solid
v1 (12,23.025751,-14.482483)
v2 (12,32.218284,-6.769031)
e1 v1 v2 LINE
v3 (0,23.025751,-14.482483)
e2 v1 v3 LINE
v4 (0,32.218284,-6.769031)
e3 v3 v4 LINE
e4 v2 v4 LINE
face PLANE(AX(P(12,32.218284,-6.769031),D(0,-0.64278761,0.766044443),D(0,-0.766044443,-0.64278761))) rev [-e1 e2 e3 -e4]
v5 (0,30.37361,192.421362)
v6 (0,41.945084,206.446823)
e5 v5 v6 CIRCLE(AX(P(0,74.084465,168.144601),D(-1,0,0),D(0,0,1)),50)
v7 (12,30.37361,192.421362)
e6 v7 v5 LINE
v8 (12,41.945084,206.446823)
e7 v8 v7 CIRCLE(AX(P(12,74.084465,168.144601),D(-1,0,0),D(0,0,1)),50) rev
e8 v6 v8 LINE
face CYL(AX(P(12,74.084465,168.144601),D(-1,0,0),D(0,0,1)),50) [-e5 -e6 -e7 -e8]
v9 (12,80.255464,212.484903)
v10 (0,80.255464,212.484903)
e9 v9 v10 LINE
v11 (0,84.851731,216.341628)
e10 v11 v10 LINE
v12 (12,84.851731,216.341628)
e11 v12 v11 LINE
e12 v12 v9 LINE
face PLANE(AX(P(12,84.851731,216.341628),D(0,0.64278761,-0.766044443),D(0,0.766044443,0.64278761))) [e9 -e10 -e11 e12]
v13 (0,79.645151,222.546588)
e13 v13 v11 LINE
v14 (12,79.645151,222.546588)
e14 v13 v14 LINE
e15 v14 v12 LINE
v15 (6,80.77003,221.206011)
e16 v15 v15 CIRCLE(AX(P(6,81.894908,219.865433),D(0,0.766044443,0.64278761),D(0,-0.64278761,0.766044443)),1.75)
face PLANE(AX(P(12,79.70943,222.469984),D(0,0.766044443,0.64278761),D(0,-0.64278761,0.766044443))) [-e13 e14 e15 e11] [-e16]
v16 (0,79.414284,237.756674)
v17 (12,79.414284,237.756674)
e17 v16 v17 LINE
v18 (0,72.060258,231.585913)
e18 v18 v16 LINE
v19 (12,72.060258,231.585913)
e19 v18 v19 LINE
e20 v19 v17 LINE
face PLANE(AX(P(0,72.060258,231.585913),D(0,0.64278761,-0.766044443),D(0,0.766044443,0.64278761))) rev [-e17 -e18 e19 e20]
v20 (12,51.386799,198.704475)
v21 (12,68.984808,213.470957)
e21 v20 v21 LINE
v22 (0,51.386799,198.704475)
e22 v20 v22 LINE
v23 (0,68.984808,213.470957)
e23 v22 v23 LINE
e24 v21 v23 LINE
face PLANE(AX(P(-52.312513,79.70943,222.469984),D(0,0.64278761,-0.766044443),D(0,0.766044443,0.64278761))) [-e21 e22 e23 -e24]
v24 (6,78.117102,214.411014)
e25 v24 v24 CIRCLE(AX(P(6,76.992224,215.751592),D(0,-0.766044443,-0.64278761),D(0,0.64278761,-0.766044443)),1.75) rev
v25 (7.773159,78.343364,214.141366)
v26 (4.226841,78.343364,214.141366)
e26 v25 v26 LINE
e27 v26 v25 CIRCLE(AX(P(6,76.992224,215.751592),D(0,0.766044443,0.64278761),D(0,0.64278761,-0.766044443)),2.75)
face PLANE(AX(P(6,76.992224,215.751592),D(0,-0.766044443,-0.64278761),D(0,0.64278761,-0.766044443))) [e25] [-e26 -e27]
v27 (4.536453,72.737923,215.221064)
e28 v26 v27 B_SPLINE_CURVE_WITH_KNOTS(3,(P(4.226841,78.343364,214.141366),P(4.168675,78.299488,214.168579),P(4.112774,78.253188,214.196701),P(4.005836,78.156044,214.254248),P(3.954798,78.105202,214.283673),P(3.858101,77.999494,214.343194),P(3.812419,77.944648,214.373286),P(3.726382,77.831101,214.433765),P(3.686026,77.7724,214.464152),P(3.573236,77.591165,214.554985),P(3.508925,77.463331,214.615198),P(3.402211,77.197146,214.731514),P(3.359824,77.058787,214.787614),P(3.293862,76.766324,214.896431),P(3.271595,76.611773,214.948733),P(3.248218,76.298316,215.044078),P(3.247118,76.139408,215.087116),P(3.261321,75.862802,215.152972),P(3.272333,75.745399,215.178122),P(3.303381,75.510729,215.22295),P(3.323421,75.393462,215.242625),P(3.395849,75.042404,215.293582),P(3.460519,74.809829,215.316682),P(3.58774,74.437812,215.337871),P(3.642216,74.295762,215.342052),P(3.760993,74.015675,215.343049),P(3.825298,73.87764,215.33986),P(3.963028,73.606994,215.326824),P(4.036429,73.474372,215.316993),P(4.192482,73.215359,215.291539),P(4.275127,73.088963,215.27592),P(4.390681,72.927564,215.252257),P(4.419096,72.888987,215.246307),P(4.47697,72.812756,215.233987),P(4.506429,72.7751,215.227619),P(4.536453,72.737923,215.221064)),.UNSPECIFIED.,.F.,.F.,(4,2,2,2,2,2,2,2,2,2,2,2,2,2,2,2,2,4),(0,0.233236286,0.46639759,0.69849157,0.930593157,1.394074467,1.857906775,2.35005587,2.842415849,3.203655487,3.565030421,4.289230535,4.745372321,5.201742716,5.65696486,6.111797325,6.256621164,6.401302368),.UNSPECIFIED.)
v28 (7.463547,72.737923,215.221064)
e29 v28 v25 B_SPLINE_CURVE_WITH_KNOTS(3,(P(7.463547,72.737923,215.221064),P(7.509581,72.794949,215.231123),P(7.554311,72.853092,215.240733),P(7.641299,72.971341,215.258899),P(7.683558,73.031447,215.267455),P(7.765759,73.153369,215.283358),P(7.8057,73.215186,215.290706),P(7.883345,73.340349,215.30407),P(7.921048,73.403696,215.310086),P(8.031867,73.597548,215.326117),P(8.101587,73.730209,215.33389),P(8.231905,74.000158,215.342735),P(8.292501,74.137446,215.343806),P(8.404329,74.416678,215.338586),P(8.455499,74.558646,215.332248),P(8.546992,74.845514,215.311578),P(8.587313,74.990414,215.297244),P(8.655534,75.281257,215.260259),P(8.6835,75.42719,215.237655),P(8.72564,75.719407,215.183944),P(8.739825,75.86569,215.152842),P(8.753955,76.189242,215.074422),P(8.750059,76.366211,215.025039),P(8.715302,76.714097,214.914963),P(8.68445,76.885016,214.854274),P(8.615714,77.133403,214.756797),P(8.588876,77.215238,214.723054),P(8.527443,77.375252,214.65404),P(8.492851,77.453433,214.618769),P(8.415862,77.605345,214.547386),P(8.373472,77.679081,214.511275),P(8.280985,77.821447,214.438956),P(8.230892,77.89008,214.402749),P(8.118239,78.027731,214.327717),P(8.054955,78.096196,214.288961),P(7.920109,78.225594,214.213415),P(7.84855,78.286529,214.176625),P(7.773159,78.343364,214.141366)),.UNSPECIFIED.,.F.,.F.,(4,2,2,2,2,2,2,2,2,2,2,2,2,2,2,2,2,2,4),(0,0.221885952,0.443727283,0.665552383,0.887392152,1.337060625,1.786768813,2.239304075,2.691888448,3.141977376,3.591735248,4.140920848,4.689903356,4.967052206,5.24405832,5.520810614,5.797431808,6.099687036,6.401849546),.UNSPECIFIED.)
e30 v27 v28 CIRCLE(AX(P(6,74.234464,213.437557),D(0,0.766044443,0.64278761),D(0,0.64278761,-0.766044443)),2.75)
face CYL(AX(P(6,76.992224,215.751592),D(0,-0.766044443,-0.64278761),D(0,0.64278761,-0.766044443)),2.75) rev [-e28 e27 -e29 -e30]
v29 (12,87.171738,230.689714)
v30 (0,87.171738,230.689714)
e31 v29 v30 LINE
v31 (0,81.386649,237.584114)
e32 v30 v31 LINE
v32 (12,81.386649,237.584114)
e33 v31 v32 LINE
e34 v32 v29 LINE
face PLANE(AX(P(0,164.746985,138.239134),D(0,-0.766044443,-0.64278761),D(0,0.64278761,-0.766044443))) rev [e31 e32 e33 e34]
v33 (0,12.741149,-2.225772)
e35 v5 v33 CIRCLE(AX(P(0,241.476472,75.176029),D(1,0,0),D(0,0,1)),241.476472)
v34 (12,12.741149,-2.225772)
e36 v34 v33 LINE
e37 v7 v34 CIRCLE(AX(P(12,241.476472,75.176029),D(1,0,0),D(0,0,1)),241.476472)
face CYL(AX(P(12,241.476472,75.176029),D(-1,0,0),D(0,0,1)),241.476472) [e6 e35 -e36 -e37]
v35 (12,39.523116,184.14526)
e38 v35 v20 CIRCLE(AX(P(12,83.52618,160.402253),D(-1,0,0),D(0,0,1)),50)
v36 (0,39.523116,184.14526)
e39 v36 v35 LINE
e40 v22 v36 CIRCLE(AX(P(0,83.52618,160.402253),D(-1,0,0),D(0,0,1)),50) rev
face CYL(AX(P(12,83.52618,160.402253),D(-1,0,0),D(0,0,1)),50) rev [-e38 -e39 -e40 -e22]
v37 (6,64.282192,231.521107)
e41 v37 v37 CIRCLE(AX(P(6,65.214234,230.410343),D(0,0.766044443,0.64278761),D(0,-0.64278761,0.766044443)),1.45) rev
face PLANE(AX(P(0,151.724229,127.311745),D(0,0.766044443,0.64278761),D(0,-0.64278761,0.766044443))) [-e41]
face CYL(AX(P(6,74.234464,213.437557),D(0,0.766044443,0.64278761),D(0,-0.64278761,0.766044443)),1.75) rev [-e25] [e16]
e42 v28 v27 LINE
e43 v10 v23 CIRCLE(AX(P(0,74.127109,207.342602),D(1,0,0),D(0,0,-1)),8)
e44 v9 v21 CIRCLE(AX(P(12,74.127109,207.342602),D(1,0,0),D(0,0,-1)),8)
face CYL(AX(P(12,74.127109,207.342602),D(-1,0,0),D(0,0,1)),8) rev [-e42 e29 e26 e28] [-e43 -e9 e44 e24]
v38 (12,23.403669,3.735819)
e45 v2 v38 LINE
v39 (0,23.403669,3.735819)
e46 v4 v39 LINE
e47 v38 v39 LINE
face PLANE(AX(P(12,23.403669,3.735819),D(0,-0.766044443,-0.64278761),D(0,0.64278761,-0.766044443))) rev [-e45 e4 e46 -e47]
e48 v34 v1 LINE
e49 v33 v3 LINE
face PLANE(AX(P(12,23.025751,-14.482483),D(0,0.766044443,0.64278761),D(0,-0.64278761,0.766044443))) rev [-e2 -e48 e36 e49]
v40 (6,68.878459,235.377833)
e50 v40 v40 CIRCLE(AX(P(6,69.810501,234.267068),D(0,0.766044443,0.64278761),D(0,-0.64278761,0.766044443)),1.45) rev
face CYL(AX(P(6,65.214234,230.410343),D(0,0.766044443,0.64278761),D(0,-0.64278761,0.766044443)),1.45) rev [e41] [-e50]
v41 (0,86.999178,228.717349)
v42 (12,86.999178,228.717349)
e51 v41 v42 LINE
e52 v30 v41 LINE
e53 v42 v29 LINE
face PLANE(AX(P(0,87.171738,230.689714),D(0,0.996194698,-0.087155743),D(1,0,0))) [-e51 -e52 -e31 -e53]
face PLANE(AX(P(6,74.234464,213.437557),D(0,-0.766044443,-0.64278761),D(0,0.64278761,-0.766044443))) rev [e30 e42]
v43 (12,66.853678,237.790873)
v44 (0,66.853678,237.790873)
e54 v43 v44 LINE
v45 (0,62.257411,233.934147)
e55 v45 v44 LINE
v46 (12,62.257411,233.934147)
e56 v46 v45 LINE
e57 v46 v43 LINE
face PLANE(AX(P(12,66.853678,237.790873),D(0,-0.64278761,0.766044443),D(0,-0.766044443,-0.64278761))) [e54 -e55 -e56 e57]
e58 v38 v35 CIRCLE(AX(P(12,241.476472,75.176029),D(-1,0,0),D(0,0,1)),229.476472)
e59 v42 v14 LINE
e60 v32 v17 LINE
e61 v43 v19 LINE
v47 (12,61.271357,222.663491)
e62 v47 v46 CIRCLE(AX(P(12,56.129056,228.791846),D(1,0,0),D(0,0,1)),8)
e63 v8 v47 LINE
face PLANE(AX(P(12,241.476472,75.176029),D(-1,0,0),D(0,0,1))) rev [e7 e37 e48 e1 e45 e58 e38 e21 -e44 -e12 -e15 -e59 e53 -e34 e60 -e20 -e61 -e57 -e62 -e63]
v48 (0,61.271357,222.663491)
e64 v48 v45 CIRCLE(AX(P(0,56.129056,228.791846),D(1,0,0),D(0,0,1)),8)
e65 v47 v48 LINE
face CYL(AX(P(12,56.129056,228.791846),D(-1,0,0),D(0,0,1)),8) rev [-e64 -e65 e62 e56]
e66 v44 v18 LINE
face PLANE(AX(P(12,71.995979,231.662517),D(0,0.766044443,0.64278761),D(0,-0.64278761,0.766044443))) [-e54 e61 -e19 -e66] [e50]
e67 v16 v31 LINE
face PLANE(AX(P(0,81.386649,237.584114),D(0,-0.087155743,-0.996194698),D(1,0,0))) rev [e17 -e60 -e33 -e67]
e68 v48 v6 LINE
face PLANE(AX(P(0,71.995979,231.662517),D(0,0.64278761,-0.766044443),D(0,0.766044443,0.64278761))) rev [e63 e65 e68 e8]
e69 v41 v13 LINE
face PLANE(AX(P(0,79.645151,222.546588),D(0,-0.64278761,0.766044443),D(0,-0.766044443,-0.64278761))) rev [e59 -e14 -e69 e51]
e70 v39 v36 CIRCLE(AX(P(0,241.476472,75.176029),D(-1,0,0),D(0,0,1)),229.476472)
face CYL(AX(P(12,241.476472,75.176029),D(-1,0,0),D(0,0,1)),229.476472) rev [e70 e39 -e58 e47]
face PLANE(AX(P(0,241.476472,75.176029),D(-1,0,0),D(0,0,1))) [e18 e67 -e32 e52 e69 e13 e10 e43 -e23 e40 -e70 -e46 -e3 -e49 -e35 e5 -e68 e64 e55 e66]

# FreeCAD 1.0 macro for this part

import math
import FreeCAD as App
import Part
import Sketcher
from FreeCAD import Vector
Q = App.Units.Quantity


def edges_at(feature, points):
    """Names of the edges that pass closest to the given points."""
    edges = feature.Shape.Edges
    near = lambda p: min(range(len(edges)), key=lambda i: edges[i].distToShape(Part.Vertex(*p))[0])
    return sorted({f"Edge{near(p) + 1}" for p in points})


def add_polygon(sketch, points):
    """Adds a closed chain of lines whose ends are joined by coincident constraints."""
    first, n = sketch.GeometryCount, len(points)
    for a, b in zip(points, points[1:] + points[:1]):
        sketch.addGeometry(Part.LineSegment(App.Vector(*a, 0), App.Vector(*b, 0)), False)
    for i in range(n):
        sketch.addConstraint(Sketcher.Constraint("Coincident", first + i, 2, first + (i + 1) % n, 1))

doc = App.newDocument("Part")
body = doc.addObject("PartDesign::Body", "Body")

sketch1 = doc.addObject("Sketcher::SketchObject", "Sketch")
body.addObject(sketch1)
sketch1.AttachmentSupport = (doc.YZ_Plane, [""])
sketch1.MapMode = "FlatFace"
sketch1.addGeometry([
    Part.LineSegment(Vector(72.773664, 230.735708, 0), Vector(65, 240, 0)),
    Part.ArcOfCircle(Part.Circle(Vector(241.476472, 75.176029, 0), Vector(0, 0, 1), 241.476472), math.radians(136.955403), math.radians(198.138691)),
    Part.LineSegment(Vector(12, 0, 0), Vector(23.403669, 3.735819, 0)),
    Part.ArcOfCircle(Part.Circle(Vector(241.476472, 75.176029, 0), Vector(0, 0, 1), 229.476472), math.radians(137.321064), math.radians(198.138691)),
], False)
sketch1.addConstraint([
    Sketcher.Constraint("Coincident", 0, 2, 1, 1),
    Sketcher.Constraint("Coincident", 1, 2, 2, 1),
    Sketcher.Constraint("Coincident", 2, 2, 3, 2),
    Sketcher.Constraint("Coincident", 3, 1, 0, 1),
    Sketcher.Constraint("Coincident", 3, 3, 1, 3),
    Sketcher.Constraint("PointOnObject", 1, 2, -1),
    Sketcher.Constraint("Angle", 0, Q("130 deg")),
    Sketcher.Constraint("Distance", 2, Q("12 mm")),
    Sketcher.Constraint("DistanceX", -1, 1, 0, 2, Q("65 mm")),
    Sketcher.Constraint("DistanceY", -1, 1, 0, 2, Q("240 mm")),
    Sketcher.Constraint("DistanceX", -1, 1, 1, 2, Q("12 mm")),
    Sketcher.Constraint("Radius", 1, Q("241.476472 mm")),
    Sketcher.Constraint("DistanceX", -1, 1, 2, 2, Q("23.403669 mm")),
])
pad1 = doc.addObject("PartDesign::Pad", "Pad")
body.addObject(pad1)
pad1.Profile = sketch1
pad1.Length = 12

sketch2 = doc.addObject("Sketcher::SketchObject", "Sketch001")
body.addObject(sketch2)
sketch2.AttachmentSupport = (doc.YZ_Plane, [""])
sketch2.MapMode = "FlatFace"
sketch2.addGeometry([
    Part.LineSegment(Vector(32.218284, -6.769031, 0), Vector(23.403669, 3.735819, 0)),
    Part.LineSegment(Vector(23.403669, 3.735819, 0), Vector(12, 0, 0)),
    Part.ArcOfCircle(Part.Circle(Vector(241.476475, 75.17603, 0), Vector(0, 0, 1), 241.476475), math.radians(-161.861309), math.radians(-161.304683)),
    Part.LineSegment(Vector(12.741149, -2.225772, 0), Vector(23.025751, -14.482483, 0)),
    Part.LineSegment(Vector(23.025751, -14.482483, 0), Vector(32.218284, -6.769031, 0)),
], False)
sketch2.addConstraint([
    Sketcher.Constraint("Coincident", 0, 2, 1, 1),
    Sketcher.Constraint("Coincident", 1, 2, 2, 1),
    Sketcher.Constraint("Coincident", 2, 2, 3, 1),
    Sketcher.Constraint("Coincident", 3, 2, 4, 1),
    Sketcher.Constraint("Coincident", 4, 2, 0, 1),
    Sketcher.Constraint("PointOnObject", 1, 2, -1),
    Sketcher.Constraint("Parallel", 0, 3),
    Sketcher.Constraint("Perpendicular", 3, 4),
    Sketcher.Constraint("Equal", 1, 4),
    Sketcher.Constraint("Angle", 0, Q("130 deg")),
    Sketcher.Constraint("Distance", 1, Q("12 mm")),
    Sketcher.Constraint("Distance", 3, Q("16 mm")),
    Sketcher.Constraint("DistanceX", -1, 1, 1, 2, Q("12 mm")),
    Sketcher.Constraint("Radius", 2, Q("241.476475 mm")),
    Sketcher.Constraint("DistanceY", 2, 2, 2, 3, Q("77.401802 mm")),
    Sketcher.Constraint("DistanceY", -1, 1, 2, 3, Q("75.17603 mm")),
])
pad2 = doc.addObject("PartDesign::Pad", "Pad001")
body.addObject(pad2)
pad2.Profile = sketch2
pad2.Length = 12

sketch3 = doc.addObject("Sketcher::SketchObject", "Sketch002")
body.addObject(sketch3)
sketch3.AttachmentSupport = (doc.YZ_Plane, [""])
sketch3.MapMode = "FlatFace"
sketch3.AttachmentOffset = App.Placement(Vector(0, 0, 12), App.Rotation())
add_polygon(sketch3, [(79.70943, 222.469984), (71.995979, 231.662517), (58.207179, 220.09234), (44.526895, 192.948331), (65.92063, 210.899807)])
sketch3.addConstraint([
    Sketcher.Constraint("Perpendicular", 0, 1),
    Sketcher.Constraint("Parallel", 1, 3),
    Sketcher.Constraint("Parallel", 3, 4),
    Sketcher.Constraint("Equal", 1, 4),
    Sketcher.Constraint("Angle", 0, Q("130 deg")),
    Sketcher.Constraint("Distance", 0, Q("12 mm")),
    Sketcher.Constraint("Distance", 1, Q("18 mm")),
    Sketcher.Constraint("Distance", 3, Q("27.927538 mm")),
    Sketcher.Constraint("DistanceX", -1, 1, 0, 2, Q("71.995979 mm")),
    Sketcher.Constraint("DistanceY", -1, 1, 1, 2, Q("220.09234 mm")),
])
pad3 = doc.addObject("PartDesign::Pad", "Pad002")
body.addObject(pad3)
pad3.Profile = sketch3
pad3.Length = 12
pad3.Reversed = True

sketch4 = doc.addObject("Sketcher::SketchObject", "Sketch003")
body.addObject(sketch4)
sketch4.AttachmentSupport = (doc.YZ_Plane, [""])
sketch4.MapMode = "FlatFace"
sketch4.AttachmentOffset = App.Placement(Vector(0, 0, 12), App.Rotation())
add_polygon(sketch4, [(33.678873, 199.510648), (71.995979, 231.662517), (65, 240), (29.603349, 204.367669)])
sketch4.addConstraint([
    Sketcher.Constraint("Perpendicular", 0, 1),
    Sketcher.Constraint("Parallel", 1, 3),
    Sketcher.Constraint("Angle", 0, Q("40 deg")),
    Sketcher.Constraint("DistanceX", -1, 1, 1, 2, Q("65 mm")),
    Sketcher.Constraint("DistanceY", -1, 1, 1, 2, Q("240 mm")),
    Sketcher.Constraint("Distance", 0, Q("50.019429 mm")),
    Sketcher.Constraint("Distance", 1, Q("10.883811 mm")),
    Sketcher.Constraint("Distance", 2, Q("50.225352 mm")),
])
pocket1 = doc.addObject("PartDesign::Pocket", "Pocket")
body.addObject(pocket1)
pocket1.Profile = sketch4
pocket1.Type = "ThroughAll"
doc.recompute()

fillet = doc.addObject("PartDesign::Fillet", "Fillet")
body.addObject(fillet)
fillet.Base = (pocket1, edges_at(pocket1, [(6, 44.527, 192.948), (6, 35.285, 200.859)]))
fillet.Radius = 50

sketch5 = doc.addObject("Sketcher::SketchObject", "Sketch004")
body.addObject(sketch5)
sketch5.Placement = App.Placement(Vector(0, 156.320496, 131.168471), App.Rotation(Vector(1, 0, 0), Vector(0, 0.64278761, -0.766044443), Vector(0, 0.766044443, 0.64278761), "ZXY"))
add_polygon(sketch5, [(0, -119.185661), (0, -131.185661), (12, -131.185661), (12, -119.185661)])
sketch5.addConstraint([
    Sketcher.Constraint("Vertical", 0),
    Sketcher.Constraint("Horizontal", 1),
    Sketcher.Constraint("Vertical", 2),
    Sketcher.Constraint("Horizontal", 3),
    Sketcher.Constraint("PointOnObject", 0, 2, -2),
    Sketcher.Constraint("Equal", 3, 0),
    Sketcher.Constraint("DistanceX", 1, 1, 1, 2, Q("12 mm")),
    Sketcher.Constraint("DistanceY", 0, 2, -1, 1, Q("131.185661 mm")),
])
pad4 = doc.addObject("PartDesign::Pad", "Pad003")
body.addObject(pad4)
pad4.Profile = sketch5
pad4.Length = 11

sketch6 = doc.addObject("Sketcher::SketchObject", "Sketch005")
body.addObject(sketch6)
sketch6.AttachmentSupport = (doc.YZ_Plane, [""])
sketch6.MapMode = "FlatFace"
sketch6.addGeometry([
    Part.LineSegment(Vector(66.853678, 237.790873, 0), Vector(71.995979, 231.662517, 0)),
    Part.LineSegment(Vector(71.995979, 231.662517, 0), Vector(61.271357, 222.663491, 0)),
    Part.ArcOfCircle(Part.Circle(Vector(56.129056, 228.791846, 0), Vector(0, 0, 1), 8), math.radians(-50), math.radians(40)),
    Part.LineSegment(Vector(62.257411, 233.934147, 0), Vector(66.853678, 237.790873, 0)),
    Part.LineSegment(Vector(68.984808, 213.470957, 0), Vector(79.70943, 222.469984, 0)),
    Part.LineSegment(Vector(79.70943, 222.469984, 0), Vector(84.851731, 216.341628, 0)),
    Part.LineSegment(Vector(84.851731, 216.341628, 0), Vector(80.255464, 212.484903, 0)),
    Part.ArcOfCircle(Part.Circle(Vector(74.127109, 207.342602, 0), Vector(0, 0, 1), 8), math.radians(40), math.radians(130)),
], False)
sketch6.addConstraint([
    Sketcher.Constraint("Coincident", 0, 2, 1, 1),
    Sketcher.Constraint("Tangent", 1, 2, 2, 1),
    Sketcher.Constraint("Coincident", 2, 2, 3, 1),
    Sketcher.Constraint("Coincident", 3, 2, 0, 1),
    Sketcher.Constraint("Coincident", 4, 2, 5, 1),
    Sketcher.Constraint("Coincident", 5, 2, 6, 1),
    Sketcher.Constraint("Coincident", 6, 2, 7, 1),
    Sketcher.Constraint("Tangent", 7, 2, 4, 1),
    Sketcher.Constraint("Equal", 2, 7),
    Sketcher.Constraint("Perpendicular", 0, 1),
    Sketcher.Constraint("Parallel", 1, 3),
    Sketcher.Constraint("Parallel", 3, 4),
    Sketcher.Constraint("Perpendicular", 4, 5),
    Sketcher.Constraint("Perpendicular", 5, 6),
    Sketcher.Constraint("Equal", 1, 4),
    Sketcher.Constraint("Equal", 0, 5),
    Sketcher.Constraint("Radius", 2, Q("8 mm")),
    Sketcher.Constraint("Angle", 0, Q("-50 deg")),
    Sketcher.Constraint("Distance", 0, Q("8 mm")),
    Sketcher.Constraint("Distance", 1, Q("14 mm")),
    Sketcher.Constraint("DistanceY", -1, 1, 7, 3, Q("207.342602 mm")),
    Sketcher.Constraint("DistanceX", -1, 1, 7, 3, Q("74.127109 mm")),
    Sketcher.Constraint("DistanceX", -1, 1, 0, 2, Q("71.995979 mm")),
    Sketcher.Constraint("DistanceY", -1, 1, 1, 2, Q("222.663491 mm")),
])
pad5 = doc.addObject("PartDesign::Pad", "Pad004")
body.addObject(pad5)
pad5.Profile = sketch6
pad5.Length = 12

sketch7 = doc.addObject("Sketcher::SketchObject", "Sketch006")
body.addObject(sketch7)
sketch7.Placement = App.Placement(Vector(0, 156.320496, 131.168471), App.Rotation(Vector(1, 0, 0), Vector(0, 0.64278761, -0.766044443), Vector(0, 0.766044443, 0.64278761), "ZXY"))
sketch7.addGeometry(Part.Circle(Vector(6, -115.785661, 0), Vector(0, 0, 1), 1.75), False)
sketch7.addConstraint([
    Sketcher.Constraint("Diameter", 0, Q("3.5 mm")),
    Sketcher.Constraint("DistanceX", -1, 1, 0, 3, Q("6 mm")),
    Sketcher.Constraint("DistanceY", 0, 3, -1, 1, Q("115.785661 mm")),
])
pocket2 = doc.addObject("PartDesign::Pocket", "Pocket001")
body.addObject(pocket2)
pocket2.Profile = sketch7
pocket2.Length = 10

sketch8 = doc.addObject("Sketcher::SketchObject", "Sketch007")
body.addObject(sketch8)
sketch8.Placement = App.Placement(Vector(0, 148.660052, 124.740595), App.Rotation(Vector(1, 0, 0), Vector(0, 0.64278761, -0.766044443), Vector(0, 0.766044443, 0.64278761), "ZXY"))
sketch8.addGeometry(Part.Circle(Vector(6, -115.785661, 0), Vector(0, 0, 1), 2.75), False)
sketch8.addConstraint([
    Sketcher.Constraint("Diameter", 0, Q("5.5 mm")),
    Sketcher.Constraint("DistanceX", -1, 1, 0, 3, Q("6 mm")),
    Sketcher.Constraint("DistanceY", 0, 3, -1, 1, Q("115.785661 mm")),
])
pocket3 = doc.addObject("PartDesign::Pocket", "Pocket002")
body.addObject(pocket3)
pocket3.Profile = sketch8
pocket3.Length = 3.6
pocket3.Reversed = True
doc.recompute()

chamfer = doc.addObject("PartDesign::Chamfer", "Chamfer")
body.addObject(chamfer)
chamfer.Base = (pocket3, edges_at(pocket3, [(6, 88.136, 229.541), (6, 80.422, 238.733)]))
chamfer.Size = 1.5

sketch9 = doc.addObject("Sketcher::SketchObject", "Sketch008")
body.addObject(sketch9)
sketch9.AttachmentSupport = (doc.YZ_Plane, [""])
sketch9.MapMode = "FlatFace"
sketch9.AttachmentOffset = App.Placement(Vector(0, 0, 12), App.Rotation())
add_polygon(sketch9, [(79.645151, 222.546588), (79.70943, 222.469984), (87.063457, 228.640745), (86.999178, 228.717349)])
add_polygon(sketch9, [(79.350005, 237.833278), (71.995979, 231.662517), (72.060258, 231.585913), (79.414284, 237.756674)])
sketch9.addConstraint([
    Sketcher.Constraint("Perpendicular", 0, 1),
    Sketcher.Constraint("Perpendicular", 1, 2),
    Sketcher.Constraint("Perpendicular", 2, 3),
    Sketcher.Constraint("Parallel", 3, 4),
    Sketcher.Constraint("Perpendicular", 4, 5),
    Sketcher.Constraint("Perpendicular", 5, 6),
    Sketcher.Constraint("Perpendicular", 6, 7),
    Sketcher.Constraint("Equal", 3, 4),
    Sketcher.Constraint("Equal", 2, 5),
    Sketcher.Constraint("Angle", 0, Q("-50 deg")),
    Sketcher.Constraint("Distance", 0, Q("0.1 mm")),
    Sketcher.Constraint("Distance", 1, Q("9.6 mm")),
    Sketcher.Constraint("DistanceX", 4, 2, 2, 2, Q("15.003199 mm")),
    Sketcher.Constraint("DistanceX", -1, 1, 0, 2, Q("79.70943 mm")),
    Sketcher.Constraint("DistanceY", -1, 1, 2, 2, Q("228.717349 mm")),
    Sketcher.Constraint("DistanceY", -1, 1, 7, 2, Q("237.833278 mm")),
])
pocket4 = doc.addObject("PartDesign::Pocket", "Pocket003")
body.addObject(pocket4)
pocket4.Profile = sketch9
pocket4.Type = "ThroughAll"

sketch10 = doc.addObject("Sketcher::SketchObject", "Sketch009")
body.addObject(sketch10)
sketch10.Placement = App.Placement(Vector(0, 156.320496, 131.168471), App.Rotation(Vector(1, 0, 0), Vector(0, 0.64278761, -0.766044443), Vector(0, 0.766044443, 0.64278761), "ZXY"))
sketch10.addGeometry(Part.Circle(Vector(6, -134.585661, 0), Vector(0, 0, 1), 1.45), False)
sketch10.addConstraint([
    Sketcher.Constraint("Diameter", 0, Q("2.9 mm")),
    Sketcher.Constraint("DistanceX", -1, 1, 0, 3, Q("6 mm")),
    Sketcher.Constraint("DistanceY", 0, 3, -1, 1, Q("134.585661 mm")),
])
pocket5 = doc.addObject("PartDesign::Pocket", "Pocket004")
body.addObject(pocket5)
pocket5.Profile = sketch10
pocket5.Length = 6

doc.recompute()
